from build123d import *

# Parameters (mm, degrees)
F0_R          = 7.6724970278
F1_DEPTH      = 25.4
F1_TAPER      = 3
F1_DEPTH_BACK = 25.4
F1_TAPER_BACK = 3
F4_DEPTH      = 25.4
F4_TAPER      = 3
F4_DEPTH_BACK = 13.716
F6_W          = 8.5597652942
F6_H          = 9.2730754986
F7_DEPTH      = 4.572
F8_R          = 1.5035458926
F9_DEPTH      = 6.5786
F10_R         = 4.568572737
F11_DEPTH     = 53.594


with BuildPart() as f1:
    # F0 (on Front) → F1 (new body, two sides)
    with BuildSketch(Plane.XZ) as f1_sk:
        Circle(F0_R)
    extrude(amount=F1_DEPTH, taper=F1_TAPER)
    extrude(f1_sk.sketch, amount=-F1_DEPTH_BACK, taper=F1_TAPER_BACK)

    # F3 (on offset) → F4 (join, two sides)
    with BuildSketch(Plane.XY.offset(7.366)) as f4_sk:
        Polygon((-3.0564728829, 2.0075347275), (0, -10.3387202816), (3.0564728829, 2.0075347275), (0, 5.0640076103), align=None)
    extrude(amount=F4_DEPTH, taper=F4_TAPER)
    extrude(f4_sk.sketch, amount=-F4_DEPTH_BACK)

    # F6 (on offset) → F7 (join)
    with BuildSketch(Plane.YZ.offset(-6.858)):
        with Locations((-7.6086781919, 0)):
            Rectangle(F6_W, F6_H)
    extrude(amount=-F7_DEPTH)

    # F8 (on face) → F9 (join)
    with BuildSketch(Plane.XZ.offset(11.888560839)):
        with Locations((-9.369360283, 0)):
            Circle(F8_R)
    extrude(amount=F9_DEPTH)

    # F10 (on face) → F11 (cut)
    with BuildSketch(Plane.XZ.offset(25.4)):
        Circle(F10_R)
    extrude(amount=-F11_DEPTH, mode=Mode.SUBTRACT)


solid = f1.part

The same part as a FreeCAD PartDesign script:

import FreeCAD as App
import Part
import Sketcher
from FreeCAD import Vector
Q = App.Units.Quantity

doc = App.newDocument("Part")
body = doc.addObject("PartDesign::Body", "Body")

# Sketch on XZ plane
sketch1 = body.newObject("Sketcher::SketchObject", "Sketch")
sketch1.AttachmentSupport = (doc.getObject("XZ_Plane"), [""])
sketch1.MapMode = "FlatFace"
sketch1.addGeometry(Part.Circle(Vector(0, 0, 0), Vector(0, 0, 1), 8), False)
sketch1.addConstraint(Sketcher.Constraint("Coincident", 0, 3, -1, 1))
sketch1.addConstraint(Sketcher.Constraint("Diameter", 0, Q("15.344994 mm")))
pad1 = body.newObject("PartDesign::Pad", "Pad")
pad1.Profile = sketch1
pad1.Length = Q("1 in")
pad1.TaperAngle = -3
pad2 = body.newObject("PartDesign::Pad", "Pad001")
pad2.Profile = sketch1
pad2.Length = Q("1 in")
pad2.Reversed = True
pad2.TaperAngle = -3

# Sketch on XY plane
sketch2 = body.newObject("Sketcher::SketchObject", "Sketch001")
sketch2.AttachmentSupport = (doc.getObject("XY_Plane"), [""])
sketch2.MapMode = "FlatFace"
sketch2.AttachmentOffset = App.Placement(Vector(0, 0, 0.29 * 25.4), App.Rotation())
sketch2.addGeometry(Part.LineSegment(Vector(-3.1, 2, 0), Vector(0, -10.3, 0)), False)
sketch2.addGeometry(Part.LineSegment(Vector(0, -10.3, 0), Vector(3.1, 2, 0)), False)
sketch2.addGeometry(Part.LineSegment(Vector(3.1, 2, 0), Vector(0, 5.1, 0)), False)
sketch2.addGeometry(Part.LineSegment(Vector(0, 5.1, 0), Vector(-3.1, 2, 0)), False)
sketch2.addConstraint(Sketcher.Constraint("Coincident", 0, 2, 1, 1))
sketch2.addConstraint(Sketcher.Constraint("Coincident", 1, 2, 2, 1))
sketch2.addConstraint(Sketcher.Constraint("Coincident", 2, 2, 3, 1))
sketch2.addConstraint(Sketcher.Constraint("Coincident", 3, 2, 0, 1))
sketch2.addConstraint(Sketcher.Constraint("Symmetric", 1, 2, 3, 2, -2))
sketch2.addConstraint(Sketcher.Constraint("PointOnObject", 0, 2, -2))
sketch2.addConstraint(Sketcher.Constraint("PointOnObject", 2, 2, -2))
sketch2.addConstraint(Sketcher.Constraint("Perpendicular", 2, 3))
sketch2.addConstraint(Sketcher.Constraint("DistanceY", 0, 2, -1, 1, Q("10.33872 mm")))
sketch2.addConstraint(Sketcher.Constraint("Distance", 0, Q("12.718964 mm")))
sketch2.addConstraint(Sketcher.Constraint("Distance", 2, Q("4.322505 mm")))
pad3 = body.newObject("PartDesign::Pad", "Pad002")
pad3.Profile = sketch2
pad3.Length = Q("1 in")
pad3.TaperAngle = -3
pad4 = body.newObject("PartDesign::Pad", "Pad003")
pad4.Profile = sketch2
pad4.Length = Q("0.54 in")
pad4.Reversed = True

# Sketch on YZ plane
sketch3 = body.newObject("Sketcher::SketchObject", "Sketch002")
sketch3.AttachmentSupport = (doc.getObject("YZ_Plane"), [""])
sketch3.MapMode = "FlatFace"
sketch3.AttachmentOffset = App.Placement(Vector(0, 0, -0.27 * 25.4), App.Rotation())
sketch3.addGeometry(Part.LineSegment(Vector(-12, 5, 0), Vector(-12, -5, 0)), False)
sketch3.addGeometry(Part.LineSegment(Vector(-12, -5, 0), Vector(-3, -5, 0)), False)
sketch3.addGeometry(Part.LineSegment(Vector(-3, -5, 0), Vector(-3, 5, 0)), False)
sketch3.addGeometry(Part.LineSegment(Vector(-3, 5, 0), Vector(-12, 5, 0)), False)
sketch3.addConstraint(Sketcher.Constraint("Coincident", 0, 2, 1, 1))
sketch3.addConstraint(Sketcher.Constraint("Coincident", 1, 2, 2, 1))
sketch3.addConstraint(Sketcher.Constraint("Coincident", 2, 2, 3, 1))
sketch3.addConstraint(Sketcher.Constraint("Coincident", 3, 2, 0, 1))
sketch3.addConstraint(Sketcher.Constraint("Vertical", 0))
sketch3.addConstraint(Sketcher.Constraint("Horizontal", 1))
sketch3.addConstraint(Sketcher.Constraint("Vertical", 2))
sketch3.addConstraint(Sketcher.Constraint("Horizontal", 3))
sketch3.addConstraint(Sketcher.Constraint("DistanceX", 1, 1, 1, 2, Q("8.559765 mm")))
sketch3.addConstraint(Sketcher.Constraint("DistanceY", 0, 2, 0, 1, Q("9.273075 mm")))
sketch3.addConstraint(Sketcher.Constraint("DistanceX", 0, 2, -1, 1, Q("11.888561 mm")))
sketch3.addConstraint(Sketcher.Constraint("DistanceY", 0, 2, -1, 1, Q("4.636538 mm")))
pad5 = body.newObject("PartDesign::Pad", "Pad004")
pad5.Profile = sketch3
pad5.Length = Q("0.18 in")
pad5.Reversed = True

# Sketch on XZ plane
sketch4 = body.newObject("Sketcher::SketchObject", "Sketch003")
sketch4.AttachmentSupport = (doc.getObject("XZ_Plane"), [""])
sketch4.MapMode = "FlatFace"
sketch4.AttachmentOffset = App.Placement(Vector(0, 0, 11.888561), App.Rotation())
sketch4.addGeometry(Part.Circle(Vector(-9.4, 0, 0), Vector(0, 0, 1), 1.5), False)
sketch4.addConstraint(Sketcher.Constraint("PointOnObject", 0, 3, -1))
sketch4.addConstraint(Sketcher.Constraint("Diameter", 0, Q("3.007092 mm")))
sketch4.addConstraint(Sketcher.Constraint("DistanceX", 0, 3, -1, 1, Q("9.36936 mm")))
pad6 = body.newObject("PartDesign::Pad", "Pad005")
pad6.Profile = sketch4
pad6.Length = Q("0.259 in")

# Sketch on XZ plane
sketch5 = body.newObject("Sketcher::SketchObject", "Sketch004")
sketch5.AttachmentSupport = (doc.getObject("XZ_Plane"), [""])
sketch5.MapMode = "FlatFace"
sketch5.AttachmentOffset = App.Placement(Vector(0, 0, 1 * 25.4), App.Rotation())
sketch5.addGeometry(Part.Circle(Vector(0, 0, 0), Vector(0, 0, 1), 4.6), False)
sketch5.addConstraint(Sketcher.Constraint("Coincident", 0, 3, -1, 1))
sketch5.addConstraint(Sketcher.Constraint("Diameter", 0, Q("9.137145 mm")))
pocket1 = body.newObject("PartDesign::Pocket", "Pocket")
pocket1.Profile = sketch5
pocket1.Length = Q("2.11 in")

doc.recompute()
